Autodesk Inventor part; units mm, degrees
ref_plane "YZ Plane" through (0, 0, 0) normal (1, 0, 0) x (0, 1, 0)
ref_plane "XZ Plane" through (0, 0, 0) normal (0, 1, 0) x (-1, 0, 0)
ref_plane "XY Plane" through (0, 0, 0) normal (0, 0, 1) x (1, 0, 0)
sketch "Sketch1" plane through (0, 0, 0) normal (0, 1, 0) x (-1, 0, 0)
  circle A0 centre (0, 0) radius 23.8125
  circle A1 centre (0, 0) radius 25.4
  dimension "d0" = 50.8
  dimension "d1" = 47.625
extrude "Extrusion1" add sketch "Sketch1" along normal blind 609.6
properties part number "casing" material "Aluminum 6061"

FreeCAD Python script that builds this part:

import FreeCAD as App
import Part
import Sketcher
Q = App.Units.Quantity

doc = App.newDocument("Part")
body = doc.addObject("PartDesign::Body", "Body")

# Sketch on XZ plane
sketch1 = body.newObject("Sketcher::SketchObject", "Sketch")
sketch1.AttachmentSupport = (doc.getObject("XZ_Plane"), [""])
sketch1.MapMode = "FlatFace"
sketch1.addGeometry(Part.Circle(App.Vector(0, 0, 0), App.Vector(0, 0, 1), 25), False)
sketch1.addGeometry(Part.Circle(App.Vector(0, 0, 0), App.Vector(0, 0, 1), 24), False)
sketch1.addConstraint(Sketcher.Constraint("Coincident", 0, 3, -1, 1))
sketch1.addConstraint(Sketcher.Constraint("Coincident", 1, 3, -1, 1))
sketch1.addConstraint(Sketcher.Constraint("Diameter", 0, Q("2 in")))
sketch1.addConstraint(Sketcher.Constraint("Diameter", 1, Q("1.875 in")))
pad1 = body.newObject("PartDesign::Pad", "Pad")
pad1.Profile = sketch1
pad1.Length = Q("24 in")
pad1.Reversed = True

doc.recompute()
